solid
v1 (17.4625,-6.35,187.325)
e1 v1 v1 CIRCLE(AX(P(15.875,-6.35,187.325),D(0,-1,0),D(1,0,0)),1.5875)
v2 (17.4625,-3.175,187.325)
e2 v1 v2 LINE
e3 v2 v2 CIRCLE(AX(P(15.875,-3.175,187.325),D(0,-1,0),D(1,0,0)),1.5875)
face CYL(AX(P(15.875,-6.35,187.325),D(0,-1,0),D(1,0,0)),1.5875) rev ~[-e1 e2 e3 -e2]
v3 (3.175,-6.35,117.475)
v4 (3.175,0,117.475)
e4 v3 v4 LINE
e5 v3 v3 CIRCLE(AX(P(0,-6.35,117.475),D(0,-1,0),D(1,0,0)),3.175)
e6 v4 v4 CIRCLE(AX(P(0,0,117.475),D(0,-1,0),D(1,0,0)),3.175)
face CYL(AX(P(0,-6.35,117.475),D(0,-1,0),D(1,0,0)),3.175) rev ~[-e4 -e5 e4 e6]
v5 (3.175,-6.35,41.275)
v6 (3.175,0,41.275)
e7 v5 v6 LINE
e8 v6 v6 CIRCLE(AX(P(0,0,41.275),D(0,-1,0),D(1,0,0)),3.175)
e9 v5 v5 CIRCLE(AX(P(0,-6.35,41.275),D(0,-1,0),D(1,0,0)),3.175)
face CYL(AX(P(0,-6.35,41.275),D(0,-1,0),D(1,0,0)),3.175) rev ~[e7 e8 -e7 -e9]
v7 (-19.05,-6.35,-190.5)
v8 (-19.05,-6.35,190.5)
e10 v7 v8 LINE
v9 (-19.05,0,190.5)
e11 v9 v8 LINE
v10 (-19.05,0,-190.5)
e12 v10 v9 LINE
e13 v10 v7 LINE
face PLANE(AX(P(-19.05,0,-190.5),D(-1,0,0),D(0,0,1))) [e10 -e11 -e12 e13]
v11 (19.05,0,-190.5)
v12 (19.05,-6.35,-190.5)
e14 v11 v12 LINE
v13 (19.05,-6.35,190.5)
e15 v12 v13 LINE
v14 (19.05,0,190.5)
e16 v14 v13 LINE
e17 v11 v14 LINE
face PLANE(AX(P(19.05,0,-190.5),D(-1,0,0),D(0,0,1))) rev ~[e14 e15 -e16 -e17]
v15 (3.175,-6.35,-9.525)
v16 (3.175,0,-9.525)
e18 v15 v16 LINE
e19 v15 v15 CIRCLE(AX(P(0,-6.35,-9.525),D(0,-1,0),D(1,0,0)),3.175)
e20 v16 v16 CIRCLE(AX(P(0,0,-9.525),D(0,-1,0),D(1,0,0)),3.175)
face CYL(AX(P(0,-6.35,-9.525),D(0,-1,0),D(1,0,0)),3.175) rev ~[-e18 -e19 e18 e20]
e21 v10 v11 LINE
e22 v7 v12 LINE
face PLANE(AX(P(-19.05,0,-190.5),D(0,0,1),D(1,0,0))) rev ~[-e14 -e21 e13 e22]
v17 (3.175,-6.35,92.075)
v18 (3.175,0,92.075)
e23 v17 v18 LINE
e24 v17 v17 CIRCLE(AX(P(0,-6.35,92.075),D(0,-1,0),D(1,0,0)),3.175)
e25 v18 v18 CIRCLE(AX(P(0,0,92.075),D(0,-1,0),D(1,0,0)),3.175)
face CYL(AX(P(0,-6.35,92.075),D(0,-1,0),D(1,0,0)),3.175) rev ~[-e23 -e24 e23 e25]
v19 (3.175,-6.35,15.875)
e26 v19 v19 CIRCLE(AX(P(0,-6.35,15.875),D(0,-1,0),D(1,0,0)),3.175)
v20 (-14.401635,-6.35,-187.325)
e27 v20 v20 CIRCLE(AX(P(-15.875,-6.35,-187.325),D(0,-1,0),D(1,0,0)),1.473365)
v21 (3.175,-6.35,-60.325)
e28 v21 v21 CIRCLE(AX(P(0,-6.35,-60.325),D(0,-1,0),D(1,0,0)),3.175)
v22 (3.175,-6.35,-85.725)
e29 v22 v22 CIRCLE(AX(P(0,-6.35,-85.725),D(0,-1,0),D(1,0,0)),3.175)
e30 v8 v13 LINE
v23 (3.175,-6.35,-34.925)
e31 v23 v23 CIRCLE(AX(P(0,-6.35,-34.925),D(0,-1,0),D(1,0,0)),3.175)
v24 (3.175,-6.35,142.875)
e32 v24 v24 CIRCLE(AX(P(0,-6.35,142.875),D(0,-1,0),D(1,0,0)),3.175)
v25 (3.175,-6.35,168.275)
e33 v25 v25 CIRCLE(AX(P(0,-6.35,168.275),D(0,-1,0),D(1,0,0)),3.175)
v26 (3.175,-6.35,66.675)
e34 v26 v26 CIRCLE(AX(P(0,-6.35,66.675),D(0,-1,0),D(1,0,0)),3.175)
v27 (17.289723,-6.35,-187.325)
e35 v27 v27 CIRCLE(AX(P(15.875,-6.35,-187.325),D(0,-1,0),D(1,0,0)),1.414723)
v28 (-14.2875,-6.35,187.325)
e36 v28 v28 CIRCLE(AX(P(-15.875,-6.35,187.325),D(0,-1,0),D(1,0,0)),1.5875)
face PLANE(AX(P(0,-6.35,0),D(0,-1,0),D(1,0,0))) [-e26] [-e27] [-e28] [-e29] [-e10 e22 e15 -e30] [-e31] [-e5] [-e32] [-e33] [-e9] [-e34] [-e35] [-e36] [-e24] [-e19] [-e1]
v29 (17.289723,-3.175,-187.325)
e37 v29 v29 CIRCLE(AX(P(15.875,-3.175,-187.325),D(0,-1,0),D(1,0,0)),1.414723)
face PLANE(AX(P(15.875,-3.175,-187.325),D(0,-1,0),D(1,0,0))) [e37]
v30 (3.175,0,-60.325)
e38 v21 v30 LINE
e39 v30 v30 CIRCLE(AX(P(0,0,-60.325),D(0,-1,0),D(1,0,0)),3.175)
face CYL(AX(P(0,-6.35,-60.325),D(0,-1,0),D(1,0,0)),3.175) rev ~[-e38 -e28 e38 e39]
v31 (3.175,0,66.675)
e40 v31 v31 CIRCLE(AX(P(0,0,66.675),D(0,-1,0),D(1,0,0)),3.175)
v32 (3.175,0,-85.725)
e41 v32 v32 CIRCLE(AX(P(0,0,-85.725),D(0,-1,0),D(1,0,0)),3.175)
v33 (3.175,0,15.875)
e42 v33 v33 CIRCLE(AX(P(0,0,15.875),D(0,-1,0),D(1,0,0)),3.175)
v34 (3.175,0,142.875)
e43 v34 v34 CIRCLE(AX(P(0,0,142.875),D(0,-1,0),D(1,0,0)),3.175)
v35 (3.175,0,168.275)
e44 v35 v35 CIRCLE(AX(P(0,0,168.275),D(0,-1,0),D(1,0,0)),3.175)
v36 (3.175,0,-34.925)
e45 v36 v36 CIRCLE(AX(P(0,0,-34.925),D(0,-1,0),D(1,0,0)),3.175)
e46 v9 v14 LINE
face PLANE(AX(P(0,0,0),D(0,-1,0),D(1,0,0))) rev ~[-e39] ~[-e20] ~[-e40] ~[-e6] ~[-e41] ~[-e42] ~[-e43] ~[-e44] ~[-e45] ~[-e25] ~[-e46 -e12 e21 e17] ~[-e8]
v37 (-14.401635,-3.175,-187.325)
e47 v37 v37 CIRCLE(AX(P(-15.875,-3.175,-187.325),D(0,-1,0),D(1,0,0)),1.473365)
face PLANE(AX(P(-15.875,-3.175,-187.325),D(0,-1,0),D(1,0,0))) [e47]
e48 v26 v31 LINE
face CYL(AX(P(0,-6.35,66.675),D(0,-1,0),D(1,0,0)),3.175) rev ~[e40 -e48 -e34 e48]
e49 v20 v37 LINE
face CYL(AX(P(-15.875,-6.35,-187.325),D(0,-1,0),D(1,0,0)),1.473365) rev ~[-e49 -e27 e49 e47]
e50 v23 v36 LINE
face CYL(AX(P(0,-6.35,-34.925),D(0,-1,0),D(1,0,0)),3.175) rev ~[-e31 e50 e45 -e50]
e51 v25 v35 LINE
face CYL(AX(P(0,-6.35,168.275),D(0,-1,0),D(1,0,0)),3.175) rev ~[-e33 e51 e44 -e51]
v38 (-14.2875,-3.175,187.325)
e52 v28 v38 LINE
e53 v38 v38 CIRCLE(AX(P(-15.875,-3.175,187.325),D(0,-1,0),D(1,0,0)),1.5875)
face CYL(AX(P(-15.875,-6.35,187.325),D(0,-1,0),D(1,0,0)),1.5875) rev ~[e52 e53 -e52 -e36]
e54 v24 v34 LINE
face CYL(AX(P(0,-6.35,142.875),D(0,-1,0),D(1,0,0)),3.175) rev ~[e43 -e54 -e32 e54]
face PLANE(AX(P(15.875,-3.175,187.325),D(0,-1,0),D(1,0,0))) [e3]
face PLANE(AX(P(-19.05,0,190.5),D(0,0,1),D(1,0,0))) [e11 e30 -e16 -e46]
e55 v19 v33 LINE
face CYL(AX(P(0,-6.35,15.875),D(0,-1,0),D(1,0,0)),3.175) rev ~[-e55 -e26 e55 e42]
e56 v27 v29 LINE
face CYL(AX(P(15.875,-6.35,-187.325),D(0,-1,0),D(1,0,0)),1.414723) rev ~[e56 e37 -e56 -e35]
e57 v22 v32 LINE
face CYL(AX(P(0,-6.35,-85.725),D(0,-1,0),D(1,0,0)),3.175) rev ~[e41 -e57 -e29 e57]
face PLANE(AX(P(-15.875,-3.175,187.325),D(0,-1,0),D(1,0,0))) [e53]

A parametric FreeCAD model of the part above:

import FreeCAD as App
import Part
import Sketcher
from FreeCAD import Vector
Q = App.Units.Quantity


def add_polygon(sketch, points):
    """Adds a closed chain of lines whose ends are joined by coincident constraints."""
    first, n = sketch.GeometryCount, len(points)
    for a, b in zip(points, points[1:] + points[:1]):
        sketch.addGeometry(Part.LineSegment(App.Vector(*a, 0), App.Vector(*b, 0)), False)
    for i in range(n):
        sketch.addConstraint(Sketcher.Constraint("Coincident", first + i, 2, first + (i + 1) % n, 1))

doc = App.newDocument("Part")
body = doc.addObject("PartDesign::Body", "Body")

# Sketch on XZ plane
sketch1 = body.newObject("Sketcher::SketchObject", "Sketch")
sketch1.AttachmentSupport = (doc.getObject("XZ_Plane"), [""])
sketch1.MapMode = "FlatFace"
add_polygon(sketch1, [(-19, 190), (-19, -190), (19, -190), (19, 190)])  # lines 0-3
sketch1.addConstraint(Sketcher.Constraint("Vertical", 0))
sketch1.addConstraint(Sketcher.Constraint("Horizontal", 1))
sketch1.addConstraint(Sketcher.Constraint("Vertical", 2))
sketch1.addConstraint(Sketcher.Constraint("Horizontal", 3))
sketch1.addConstraint(Sketcher.Constraint("Symmetric", 0, 2, 2, 2, -1, 1))
sketch1.addConstraint(Sketcher.Constraint("DistanceY", 0, 2, 0, 1, Q("15 in")))
sketch1.addConstraint(Sketcher.Constraint("DistanceX", 1, 1, 1, 2, Q("1.5 in")))
pad1 = body.newObject("PartDesign::Pad", "Pad")
pad1.Profile = sketch1
pad1.Length = Q("0.25 in")

# Sketch on XZ plane
sketch2 = body.newObject("Sketcher::SketchObject", "Sketch001")
sketch2.AttachmentSupport = (doc.getObject("XZ_Plane"), [""])
sketch2.MapMode = "FlatFace"
sketch2.AttachmentOffset = App.Placement(Vector(0, 0, 0.25 * 25.4), App.Rotation())
sketch2.addGeometry(Part.Circle(Vector(0, -85.7, 0), Vector(0, 0, 1), 3.2), False)
sketch2.addGeometry(Part.Circle(Vector(0, -60.3, 0), Vector(0, 0, 1), 3.2), False)
sketch2.addGeometry(Part.Circle(Vector(0, -34.9, 0), Vector(0, 0, 1), 3.2), False)
sketch2.addGeometry(Part.Circle(Vector(0, -9.5, 0), Vector(0, 0, 1), 3.2), False)
sketch2.addGeometry(Part.Circle(Vector(0, 15.9, 0), Vector(0, 0, 1), 3.2), False)
sketch2.addGeometry(Part.Circle(Vector(0, 41.3, 0), Vector(0, 0, 1), 3.2), False)
sketch2.addGeometry(Part.Circle(Vector(0, 66.7, 0), Vector(0, 0, 1), 3.2), False)
sketch2.addGeometry(Part.Circle(Vector(0, 92.1, 0), Vector(0, 0, 1), 3.2), False)
sketch2.addGeometry(Part.Circle(Vector(0, 117.5, 0), Vector(0, 0, 1), 3.2), False)
sketch2.addGeometry(Part.Circle(Vector(0, 142.9, 0), Vector(0, 0, 1), 3.2), False)
sketch2.addGeometry(Part.Circle(Vector(0, 168.3, 0), Vector(0, 0, 1), 3.2), False)
sketch2.addConstraint(Sketcher.Constraint("Equal", 0, 1))
sketch2.addConstraint(Sketcher.Constraint("Equal", 1, 2))
sketch2.addConstraint(Sketcher.Constraint("Equal", 2, 3))
sketch2.addConstraint(Sketcher.Constraint("Equal", 3, 4))
sketch2.addConstraint(Sketcher.Constraint("Equal", 4, 5))
sketch2.addConstraint(Sketcher.Constraint("Equal", 5, 6))
sketch2.addConstraint(Sketcher.Constraint("Equal", 6, 7))
sketch2.addConstraint(Sketcher.Constraint("Equal", 7, 8))
sketch2.addConstraint(Sketcher.Constraint("Equal", 8, 9))
sketch2.addConstraint(Sketcher.Constraint("Equal", 9, 10))
sketch2.addConstraint(Sketcher.Constraint("PointOnObject", 0, 3, -2))
sketch2.addConstraint(Sketcher.Constraint("PointOnObject", 1, 3, -2))
sketch2.addConstraint(Sketcher.Constraint("PointOnObject", 2, 3, -2))
sketch2.addConstraint(Sketcher.Constraint("PointOnObject", 3, 3, -2))
sketch2.addConstraint(Sketcher.Constraint("PointOnObject", 4, 3, -2))
sketch2.addConstraint(Sketcher.Constraint("PointOnObject", 5, 3, -2))
sketch2.addConstraint(Sketcher.Constraint("PointOnObject", 6, 3, -2))
sketch2.addConstraint(Sketcher.Constraint("PointOnObject", 7, 3, -2))
sketch2.addConstraint(Sketcher.Constraint("PointOnObject", 8, 3, -2))
sketch2.addConstraint(Sketcher.Constraint("PointOnObject", 9, 3, -2))
sketch2.addConstraint(Sketcher.Constraint("PointOnObject", 10, 3, -2))
sketch2.addConstraint(Sketcher.Constraint("Diameter", 0, Q("0.25 in")))
sketch2.addConstraint(Sketcher.Constraint("DistanceY", 0, 3, 1, 3, Q("1 in")))
sketch2.addConstraint(Sketcher.Constraint("DistanceY", 1, 3, 2, 3, Q("1 in")))
sketch2.addConstraint(Sketcher.Constraint("DistanceY", 2, 3, 3, 3, Q("1 in")))
sketch2.addConstraint(Sketcher.Constraint("DistanceY", 3, 3, 4, 3, Q("1 in")))
sketch2.addConstraint(Sketcher.Constraint("DistanceY", 4, 3, 5, 3, Q("1 in")))
sketch2.addConstraint(Sketcher.Constraint("DistanceY", 5, 3, 6, 3, Q("1 in")))
sketch2.addConstraint(Sketcher.Constraint("DistanceY", 6, 3, 7, 3, Q("1 in")))
sketch2.addConstraint(Sketcher.Constraint("DistanceY", 7, 3, 8, 3, Q("1 in")))
sketch2.addConstraint(Sketcher.Constraint("DistanceY", 8, 3, 9, 3, Q("1 in")))
sketch2.addConstraint(Sketcher.Constraint("DistanceY", 9, 3, 10, 3, Q("1 in")))
sketch2.addConstraint(Sketcher.Constraint("DistanceY", 0, 3, -1, 1, Q("3.375 in")))
pocket1 = body.newObject("PartDesign::Pocket", "Pocket")
pocket1.Profile = sketch2
pocket1.Type = "ThroughAll"

# Sketch on XZ plane
sketch3 = body.newObject("Sketcher::SketchObject", "Sketch002")
sketch3.AttachmentSupport = (doc.getObject("XZ_Plane"), [""])
sketch3.MapMode = "FlatFace"
sketch3.AttachmentOffset = App.Placement(Vector(0, 0, 0.25 * 25.4), App.Rotation())
sketch3.addGeometry(Part.Circle(Vector(-15.9, 187.3, 0), Vector(0, 0, 1), 1.6), False)
sketch3.addGeometry(Part.Circle(Vector(15.9, 187.3, 0), Vector(0, 0, 1), 1.6), False)
sketch3.addConstraint(Sketcher.Constraint("Equal", 0, 1))
sketch3.addConstraint(Sketcher.Constraint("Symmetric", 0, 3, 1, 3, -2))
sketch3.addConstraint(Sketcher.Constraint("Diameter", 0, Q("0.125 in")))
sketch3.addConstraint(Sketcher.Constraint("DistanceX", 0, 3, 1, 3, Q("1.25 in")))
sketch3.addConstraint(Sketcher.Constraint("DistanceY", -1, 1, 0, 3, Q("7.375 in")))
pocket2 = body.newObject("PartDesign::Pocket", "Pocket001")
pocket2.Profile = sketch3
pocket2.Length = Q("0.125 in")

# Sketch on XZ plane
sketch4 = body.newObject("Sketcher::SketchObject", "Sketch003")
sketch4.AttachmentSupport = (doc.getObject("XZ_Plane"), [""])
sketch4.MapMode = "FlatFace"
sketch4.AttachmentOffset = App.Placement(Vector(0, 0, 0.25 * 25.4), App.Rotation())
sketch4.addGeometry(Part.Circle(Vector(-15.9, -187.3, 0), Vector(0, 0, 1), 1.5), False)
sketch4.addGeometry(Part.Circle(Vector(15.9, -187.3, 0), Vector(0, 0, 1), 1.4), False)
sketch4.addConstraint(Sketcher.Constraint("Symmetric", 0, 3, 1, 3, -2))
sketch4.addConstraint(Sketcher.Constraint("DistanceX", 0, 3, 1, 3, Q("1.25 in")))
sketch4.addConstraint(Sketcher.Constraint("Diameter", 0, 2.94673))
sketch4.addConstraint(Sketcher.Constraint("DistanceY", 0, 3, -1, 1, Q("7.375 in")))
sketch4.addConstraint(Sketcher.Constraint("Diameter", 1, 2.829446))
pocket3 = body.newObject("PartDesign::Pocket", "Pocket002")
pocket3.Profile = sketch4
pocket3.Length = Q("0.125 in")

doc.recompute()
